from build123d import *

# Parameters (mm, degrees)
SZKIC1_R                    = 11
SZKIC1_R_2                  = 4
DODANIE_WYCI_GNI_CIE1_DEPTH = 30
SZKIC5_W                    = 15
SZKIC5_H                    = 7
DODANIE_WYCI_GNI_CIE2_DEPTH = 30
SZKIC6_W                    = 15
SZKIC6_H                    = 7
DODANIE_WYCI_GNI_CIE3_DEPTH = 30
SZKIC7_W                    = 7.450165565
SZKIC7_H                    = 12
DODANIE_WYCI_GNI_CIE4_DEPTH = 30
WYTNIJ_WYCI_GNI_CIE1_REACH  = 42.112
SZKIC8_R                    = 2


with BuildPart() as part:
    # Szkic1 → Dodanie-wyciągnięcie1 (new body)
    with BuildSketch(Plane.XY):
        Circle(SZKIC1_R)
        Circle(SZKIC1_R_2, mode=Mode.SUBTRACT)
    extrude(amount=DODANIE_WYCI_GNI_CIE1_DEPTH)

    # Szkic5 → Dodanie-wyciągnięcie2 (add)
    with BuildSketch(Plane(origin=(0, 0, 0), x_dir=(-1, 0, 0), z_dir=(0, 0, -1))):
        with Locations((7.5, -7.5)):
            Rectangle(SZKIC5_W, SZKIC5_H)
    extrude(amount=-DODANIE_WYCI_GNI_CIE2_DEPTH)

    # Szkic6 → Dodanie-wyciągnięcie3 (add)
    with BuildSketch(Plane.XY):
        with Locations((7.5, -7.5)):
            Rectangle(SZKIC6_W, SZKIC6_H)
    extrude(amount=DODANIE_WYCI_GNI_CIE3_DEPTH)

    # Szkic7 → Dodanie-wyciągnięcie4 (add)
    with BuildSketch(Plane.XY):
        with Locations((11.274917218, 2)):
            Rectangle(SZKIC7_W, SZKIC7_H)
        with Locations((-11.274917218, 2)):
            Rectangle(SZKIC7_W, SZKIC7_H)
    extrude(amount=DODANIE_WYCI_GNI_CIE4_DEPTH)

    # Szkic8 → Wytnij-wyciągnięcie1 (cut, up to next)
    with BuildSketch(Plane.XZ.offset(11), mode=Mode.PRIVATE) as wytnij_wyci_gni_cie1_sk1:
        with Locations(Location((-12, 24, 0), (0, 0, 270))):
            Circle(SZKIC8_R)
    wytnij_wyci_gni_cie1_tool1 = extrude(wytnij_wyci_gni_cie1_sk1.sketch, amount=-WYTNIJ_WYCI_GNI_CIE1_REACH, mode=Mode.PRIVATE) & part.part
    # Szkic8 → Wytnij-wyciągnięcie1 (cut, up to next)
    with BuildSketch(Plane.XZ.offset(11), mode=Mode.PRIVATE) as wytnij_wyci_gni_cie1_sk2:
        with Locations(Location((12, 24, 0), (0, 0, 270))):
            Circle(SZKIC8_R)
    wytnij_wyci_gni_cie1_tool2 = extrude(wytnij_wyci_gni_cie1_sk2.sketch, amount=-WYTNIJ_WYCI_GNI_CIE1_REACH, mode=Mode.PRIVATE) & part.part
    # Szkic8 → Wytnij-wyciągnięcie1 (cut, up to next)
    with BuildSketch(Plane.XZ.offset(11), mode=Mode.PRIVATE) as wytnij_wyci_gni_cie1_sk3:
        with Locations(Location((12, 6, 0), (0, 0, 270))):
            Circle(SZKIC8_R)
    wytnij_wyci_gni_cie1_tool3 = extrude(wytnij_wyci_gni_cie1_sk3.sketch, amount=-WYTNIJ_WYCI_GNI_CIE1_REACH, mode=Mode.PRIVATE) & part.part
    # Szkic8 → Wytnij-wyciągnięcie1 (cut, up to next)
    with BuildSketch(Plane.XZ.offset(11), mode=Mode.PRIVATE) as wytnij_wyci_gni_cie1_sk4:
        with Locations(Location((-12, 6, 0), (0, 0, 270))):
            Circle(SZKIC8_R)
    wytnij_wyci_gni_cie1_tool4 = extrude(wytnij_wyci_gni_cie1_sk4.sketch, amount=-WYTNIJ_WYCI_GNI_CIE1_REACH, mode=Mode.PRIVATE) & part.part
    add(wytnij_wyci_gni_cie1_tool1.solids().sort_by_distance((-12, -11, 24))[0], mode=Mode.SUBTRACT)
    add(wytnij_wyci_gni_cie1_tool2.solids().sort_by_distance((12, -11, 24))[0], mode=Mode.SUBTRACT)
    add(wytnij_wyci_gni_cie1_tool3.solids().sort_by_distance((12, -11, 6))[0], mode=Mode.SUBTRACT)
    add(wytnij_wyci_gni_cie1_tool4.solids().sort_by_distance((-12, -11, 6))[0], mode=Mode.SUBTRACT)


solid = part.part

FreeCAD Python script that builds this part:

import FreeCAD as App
import Part
import Sketcher
from FreeCAD import Vector
Q = App.Units.Quantity


def add_polygon(sketch, points):
    """Adds a closed chain of lines whose ends are joined by coincident constraints."""
    first, n = sketch.GeometryCount, len(points)
    for a, b in zip(points, points[1:] + points[:1]):
        sketch.addGeometry(Part.LineSegment(App.Vector(*a, 0), App.Vector(*b, 0)), False)
    for i in range(n):
        sketch.addConstraint(Sketcher.Constraint("Coincident", first + i, 2, first + (i + 1) % n, 1))

doc = App.newDocument("Part")
body = doc.addObject("PartDesign::Body", "Body")

sketch1 = body.newObject("Sketcher::SketchObject", "Sketch")
sketch1.AttachmentSupport = (doc.getObject("XY_Plane"), [""])
sketch1.MapMode = "FlatFace"
sketch1.addGeometry([
    Part.Circle(Vector(0, 0, 0), Vector(0, 0, 1), 11),
    Part.Circle(Vector(0, 0, 0), Vector(0, 0, 1), 4),
], False)
sketch1.addConstraint([
    Sketcher.Constraint("Coincident", 0, 3, -1, 1),
    Sketcher.Constraint("Coincident", 1, 3, -1, 1),
    Sketcher.Constraint("Diameter", 0, Q("22 mm")),
    Sketcher.Constraint("Diameter", 1, Q("8 mm")),
])
pad1 = body.newObject("PartDesign::Pad", "Pad")
pad1.Profile = sketch1
pad1.Length = 30

sketch2 = body.newObject("Sketcher::SketchObject", "Sketch001")
sketch2.AttachmentSupport = (doc.getObject("XY_Plane"), [""])
sketch2.MapMode = "FlatFace"
add_polygon(sketch2, [(0, -4), (0, -11), (-15, -11), (-15, -4)])
sketch2.addConstraint([
    Sketcher.Constraint("Vertical", 0),
    Sketcher.Constraint("Horizontal", 1),
    Sketcher.Constraint("Vertical", 2),
    Sketcher.Constraint("Horizontal", 3),
    Sketcher.Constraint("PointOnObject", 0, 2, -2),
    Sketcher.Constraint("DistanceX", 1, 2, 1, 1, Q("15 mm")),
    Sketcher.Constraint("DistanceY", 0, 2, 0, 1, Q("7 mm")),
    Sketcher.Constraint("DistanceY", 0, 2, -1, 1, Q("11 mm")),
])
pad2 = body.newObject("PartDesign::Pad", "Pad001")
pad2.Profile = sketch2
pad2.Length = 30

sketch3 = body.newObject("Sketcher::SketchObject", "Sketch002")
sketch3.AttachmentSupport = (doc.getObject("XY_Plane"), [""])
sketch3.MapMode = "FlatFace"
add_polygon(sketch3, [(0, -4), (0, -11), (15, -11), (15, -4)])
sketch3.addConstraint([
    Sketcher.Constraint("Vertical", 0),
    Sketcher.Constraint("Horizontal", 1),
    Sketcher.Constraint("Vertical", 2),
    Sketcher.Constraint("Horizontal", 3),
    Sketcher.Constraint("PointOnObject", 0, 2, -2),
    Sketcher.Constraint("DistanceX", 1, 1, 1, 2, Q("15 mm")),
    Sketcher.Constraint("DistanceY", 0, 2, 0, 1, Q("7 mm")),
    Sketcher.Constraint("DistanceY", 0, 2, -1, 1, Q("11 mm")),
])
pad3 = body.newObject("PartDesign::Pad", "Pad002")
pad3.Profile = sketch3
pad3.Length = 30

sketch4 = body.newObject("Sketcher::SketchObject", "Sketch003")
sketch4.AttachmentSupport = (doc.getObject("XY_Plane"), [""])
sketch4.MapMode = "FlatFace"
add_polygon(sketch4, [(8, 8), (8, -4), (15, -4), (15, 8)])
add_polygon(sketch4, [(-15, 8), (-15, -4), (-8, -4), (-8, 8)])
sketch4.addConstraint([
    Sketcher.Constraint("Vertical", 0),
    Sketcher.Constraint("Horizontal", 1),
    Sketcher.Constraint("Vertical", 2),
    Sketcher.Constraint("Horizontal", 3),
    Sketcher.Constraint("Vertical", 4),
    Sketcher.Constraint("Horizontal", 5),
    Sketcher.Constraint("Vertical", 6),
    Sketcher.Constraint("Horizontal", 7),
    Sketcher.Constraint("Symmetric", 1, 2, 4, 2, -2),
    Sketcher.Constraint("Symmetric", 3, 2, 6, 2, -2),
    Sketcher.Constraint("DistanceY", 0, 2, 0, 1, Q("12 mm")),
    Sketcher.Constraint("DistanceY", 0, 2, -1, 1, Q("4 mm")),
    Sketcher.Constraint("DistanceX", -1, 1, 1, 2, Q("15 mm")),
    Sketcher.Constraint("DistanceX", 1, 1, 1, 2, Q("7.450166 mm")),
])
pad4 = body.newObject("PartDesign::Pad", "Pad003")
pad4.Profile = sketch4
pad4.Length = 30

sketch5 = body.newObject("Sketcher::SketchObject", "Sketch004")
sketch5.AttachmentSupport = (doc.getObject("XZ_Plane"), [""])
sketch5.MapMode = "FlatFace"
sketch5.AttachmentOffset = App.Placement(Vector(0, 0, 11), App.Rotation())
sketch5.addGeometry(Part.Circle(Vector(-12, 24, 0), Vector(0, 0, 1), 2), False)
sketch5.addConstraint([
    Sketcher.Constraint("Diameter", 0, Q("4 mm")),
    Sketcher.Constraint("DistanceX", 0, 3, -1, 1, Q("12 mm")),
    Sketcher.Constraint("DistanceY", -1, 1, 0, 3, Q("24 mm")),
])
pocket1 = body.newObject("PartDesign::Pocket", "Pocket")
pocket1.Profile = sketch5
pocket1.Type = "UpToFirst"

sketch6 = body.newObject("Sketcher::SketchObject", "Sketch005")
sketch6.AttachmentSupport = (doc.getObject("XZ_Plane"), [""])
sketch6.MapMode = "FlatFace"
sketch6.AttachmentOffset = App.Placement(Vector(0, 0, 11), App.Rotation())
sketch6.addGeometry(Part.Circle(Vector(12, 24, 0), Vector(0, 0, 1), 2), False)
sketch6.addConstraint([
    Sketcher.Constraint("Diameter", 0, Q("4 mm")),
    Sketcher.Constraint("DistanceX", -1, 1, 0, 3, Q("12 mm")),
    Sketcher.Constraint("DistanceY", -1, 1, 0, 3, Q("24 mm")),
])
pocket2 = body.newObject("PartDesign::Pocket", "Pocket001")
pocket2.Profile = sketch6
pocket2.Type = "UpToFirst"

sketch7 = body.newObject("Sketcher::SketchObject", "Sketch006")
sketch7.AttachmentSupport = (doc.getObject("XZ_Plane"), [""])
sketch7.MapMode = "FlatFace"
sketch7.AttachmentOffset = App.Placement(Vector(0, 0, 11), App.Rotation())
sketch7.addGeometry(Part.Circle(Vector(12, 6, 0), Vector(0, 0, 1), 2), False)
sketch7.addConstraint([
    Sketcher.Constraint("Diameter", 0, Q("4 mm")),
    Sketcher.Constraint("DistanceX", -1, 1, 0, 3, Q("12 mm")),
    Sketcher.Constraint("DistanceY", -1, 1, 0, 3, Q("6 mm")),
])
pocket3 = body.newObject("PartDesign::Pocket", "Pocket002")
pocket3.Profile = sketch7
pocket3.Type = "UpToFirst"

sketch8 = body.newObject("Sketcher::SketchObject", "Sketch007")
sketch8.AttachmentSupport = (doc.getObject("XZ_Plane"), [""])
sketch8.MapMode = "FlatFace"
sketch8.AttachmentOffset = App.Placement(Vector(0, 0, 11), App.Rotation())
sketch8.addGeometry(Part.Circle(Vector(-12, 6, 0), Vector(0, 0, 1), 2), False)
sketch8.addConstraint([
    Sketcher.Constraint("Diameter", 0, Q("4 mm")),
    Sketcher.Constraint("DistanceX", 0, 3, -1, 1, Q("12 mm")),
    Sketcher.Constraint("DistanceY", -1, 1, 0, 3, Q("6 mm")),
])
pocket4 = body.newObject("PartDesign::Pocket", "Pocket003")
pocket4.Profile = sketch8
pocket4.Type = "UpToFirst"

doc.recompute()
